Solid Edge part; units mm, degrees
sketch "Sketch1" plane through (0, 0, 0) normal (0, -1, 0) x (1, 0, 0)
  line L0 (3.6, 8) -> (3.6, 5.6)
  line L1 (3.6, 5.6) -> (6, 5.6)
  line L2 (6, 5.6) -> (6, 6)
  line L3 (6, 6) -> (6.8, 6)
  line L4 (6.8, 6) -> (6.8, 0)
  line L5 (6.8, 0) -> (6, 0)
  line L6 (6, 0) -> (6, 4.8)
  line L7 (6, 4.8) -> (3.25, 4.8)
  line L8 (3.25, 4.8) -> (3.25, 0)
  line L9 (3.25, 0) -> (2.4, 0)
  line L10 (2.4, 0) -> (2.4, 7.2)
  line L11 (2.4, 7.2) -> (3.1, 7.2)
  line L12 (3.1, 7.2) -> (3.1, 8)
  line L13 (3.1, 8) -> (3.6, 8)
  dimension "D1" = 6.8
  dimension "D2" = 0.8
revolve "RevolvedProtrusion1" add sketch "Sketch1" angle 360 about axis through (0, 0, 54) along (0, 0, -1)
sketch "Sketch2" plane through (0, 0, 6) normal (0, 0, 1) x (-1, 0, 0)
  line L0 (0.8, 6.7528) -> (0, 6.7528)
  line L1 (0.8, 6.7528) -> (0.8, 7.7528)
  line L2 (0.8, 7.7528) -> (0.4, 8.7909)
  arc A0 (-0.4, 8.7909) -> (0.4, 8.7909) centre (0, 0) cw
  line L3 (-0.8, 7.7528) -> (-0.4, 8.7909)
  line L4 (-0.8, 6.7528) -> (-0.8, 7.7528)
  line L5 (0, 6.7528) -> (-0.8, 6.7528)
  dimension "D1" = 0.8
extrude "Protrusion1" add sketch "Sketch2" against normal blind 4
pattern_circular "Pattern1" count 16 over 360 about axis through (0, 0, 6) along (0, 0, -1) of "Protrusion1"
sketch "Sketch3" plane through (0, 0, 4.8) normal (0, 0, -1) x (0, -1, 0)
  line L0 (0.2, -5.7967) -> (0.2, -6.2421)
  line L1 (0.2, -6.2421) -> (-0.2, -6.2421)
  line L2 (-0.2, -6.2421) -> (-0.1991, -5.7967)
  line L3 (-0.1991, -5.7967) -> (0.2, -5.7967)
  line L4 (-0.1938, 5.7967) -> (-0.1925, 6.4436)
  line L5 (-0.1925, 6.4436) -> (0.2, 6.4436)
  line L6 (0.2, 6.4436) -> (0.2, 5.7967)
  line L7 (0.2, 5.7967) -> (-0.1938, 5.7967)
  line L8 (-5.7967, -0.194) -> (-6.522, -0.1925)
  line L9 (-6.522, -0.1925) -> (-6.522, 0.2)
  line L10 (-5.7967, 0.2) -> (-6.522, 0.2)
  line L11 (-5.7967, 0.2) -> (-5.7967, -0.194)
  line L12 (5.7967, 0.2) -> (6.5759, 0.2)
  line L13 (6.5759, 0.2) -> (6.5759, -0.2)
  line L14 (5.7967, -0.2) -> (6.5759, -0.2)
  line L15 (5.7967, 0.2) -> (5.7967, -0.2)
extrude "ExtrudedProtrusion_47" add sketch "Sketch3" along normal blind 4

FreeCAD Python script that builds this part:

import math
import FreeCAD as App
import Part
import Sketcher

doc = App.newDocument("Part")
params = doc.addObject("Spreadsheet::Sheet", "Params")
for row, (alias, value) in enumerate([
    ("sketch1_height", "6 mm"),
    ("sketch1_width", "0.5 mm"),
    ("sketch1_width2", "0.7 mm"),
    ("sketch1_width3", "0.8 mm"),
    ("sketch1_width4", "2.4 mm"),
    ("revolution_angle", "360 deg"),
    ("sketch2_radius", "8.8 mm"),
    ("sketch2_height", "1 mm"),
    ("pad1_length", "4 mm"),
    ("sketch3_width", "0.4 mm"),
    ("sketch3_height", "0.4 mm"),
    ("pad2_length", "4 mm"),
], start=1):
    params.set(f"A{row}", alias)
    params.set(f"B{row}", "=" + value)
    params.setAlias(f"B{row}", alias)

body = doc.addObject("PartDesign::Body", "Body")

sketch1 = body.newObject("Sketcher::SketchObject", "Sketch")
sketch1.AttachmentSupport = (doc.getObject("XZ_Plane"), [""])
sketch1.MapMode = "FlatFace"
sketch1.addGeometry(Part.LineSegment(App.Vector(3.6, 5.6, 0), App.Vector(3.6, 8, 0)), False)
sketch1.addGeometry(Part.LineSegment(App.Vector(3.6, 8, 0), App.Vector(3.1, 8, 0)), False)
sketch1.addGeometry(Part.LineSegment(App.Vector(3.1, 8, 0), App.Vector(3.1, 7.2, 0)), False)
sketch1.addGeometry(Part.LineSegment(App.Vector(3.1, 7.2, 0), App.Vector(2.4, 7.2, 0)), False)
sketch1.addGeometry(Part.LineSegment(App.Vector(2.4, 7.2, 0), App.Vector(2.4, 0, 0)), False)
sketch1.addGeometry(Part.LineSegment(App.Vector(2.4, 0, 0), App.Vector(3.25, 0, 0)), False)
sketch1.addGeometry(Part.LineSegment(App.Vector(3.25, 0, 0), App.Vector(3.25, 4.8, 0)), False)
sketch1.addGeometry(Part.LineSegment(App.Vector(3.25, 4.8, 0), App.Vector(6, 4.8, 0)), False)
sketch1.addGeometry(Part.LineSegment(App.Vector(6, 4.8, 0), App.Vector(6, 0, 0)), False)
sketch1.addGeometry(Part.LineSegment(App.Vector(6, 0, 0), App.Vector(6.8, 0, 0)), False)
sketch1.addGeometry(Part.LineSegment(App.Vector(6.8, 0, 0), App.Vector(6.8, 6, 0)), False)
sketch1.addGeometry(Part.LineSegment(App.Vector(6.8, 6, 0), App.Vector(6, 6, 0)), False)
sketch1.addGeometry(Part.LineSegment(App.Vector(6, 6, 0), App.Vector(6, 5.6, 0)), False)
sketch1.addGeometry(Part.LineSegment(App.Vector(6, 5.6, 0), App.Vector(3.6, 5.6, 0)), False)
sketch1.addConstraint(Sketcher.Constraint("Coincident", 0, 2, 1, 1))
sketch1.addConstraint(Sketcher.Constraint("Coincident", 1, 2, 2, 1))
sketch1.addConstraint(Sketcher.Constraint("Coincident", 2, 2, 3, 1))
sketch1.addConstraint(Sketcher.Constraint("Coincident", 3, 2, 4, 1))
sketch1.addConstraint(Sketcher.Constraint("Coincident", 4, 2, 5, 1))
sketch1.addConstraint(Sketcher.Constraint("Coincident", 5, 2, 6, 1))
sketch1.addConstraint(Sketcher.Constraint("Coincident", 6, 2, 7, 1))
sketch1.addConstraint(Sketcher.Constraint("Coincident", 7, 2, 8, 1))
sketch1.addConstraint(Sketcher.Constraint("Coincident", 8, 2, 9, 1))
sketch1.addConstraint(Sketcher.Constraint("Coincident", 9, 2, 10, 1))
sketch1.addConstraint(Sketcher.Constraint("Coincident", 10, 2, 11, 1))
sketch1.addConstraint(Sketcher.Constraint("Coincident", 11, 2, 12, 1))
sketch1.addConstraint(Sketcher.Constraint("Coincident", 12, 2, 13, 1))
sketch1.addConstraint(Sketcher.Constraint("Coincident", 13, 2, 0, 1))
sketch1.addConstraint(Sketcher.Constraint("Vertical", 0))
sketch1.addConstraint(Sketcher.Constraint("Horizontal", 1))
sketch1.addConstraint(Sketcher.Constraint("Vertical", 2))
sketch1.addConstraint(Sketcher.Constraint("Horizontal", 3))
sketch1.addConstraint(Sketcher.Constraint("Vertical", 4))
sketch1.addConstraint(Sketcher.Constraint("Horizontal", 5))
sketch1.addConstraint(Sketcher.Constraint("Vertical", 6))
sketch1.addConstraint(Sketcher.Constraint("Horizontal", 7))
sketch1.addConstraint(Sketcher.Constraint("Vertical", 8))
sketch1.addConstraint(Sketcher.Constraint("Horizontal", 9))
sketch1.addConstraint(Sketcher.Constraint("Vertical", 10))
sketch1.addConstraint(Sketcher.Constraint("Horizontal", 11))
sketch1.addConstraint(Sketcher.Constraint("Vertical", 12))
sketch1.addConstraint(Sketcher.Constraint("Horizontal", 13))
sketch1.addConstraint(Sketcher.Constraint("PointOnObject", 4, 2, -1))
sketch1.addConstraint(Sketcher.Constraint("PointOnObject", 8, 2, -1))
sketch1.addConstraint(Sketcher.Constraint("Vertical", 8, 2, 11, 2))
sketch1.addConstraint(Sketcher.Constraint("Equal", 13, 0))
sketch1.addConstraint(Sketcher.Constraint("Equal", 11, 2))
sketch1.addConstraint(Sketcher.Constraint("DistanceY", 10, 1, 10, 2, 6.0))
sketch1.addConstraint(Sketcher.Constraint("DistanceX", 1, 2, 1, 1, 0.5))
sketch1.addConstraint(Sketcher.Constraint("DistanceX", 3, 2, 3, 1, 0.7))
sketch1.addConstraint(Sketcher.Constraint("DistanceX", 9, 1, 9, 2, 0.8))
sketch1.addConstraint(Sketcher.Constraint("DistanceX", 13, 2, 13, 1, 2.4))
sketch1.addConstraint(Sketcher.Constraint("DistanceY", 4, 2, 4, 1, 7.2))
sketch1.addConstraint(Sketcher.Constraint("DistanceY", 6, 1, 6, 2, 4.8))
sketch1.addConstraint(Sketcher.Constraint("DistanceX", -1, 1, 7, 2, 6.0))
sketch1.addConstraint(Sketcher.Constraint("DistanceX", 5, 1, 5, 2, 0.85))
sketch1.setExpression("Constraints[33]", "Params.sketch1_height")
sketch1.setExpression("Constraints[34]", "Params.sketch1_width")
sketch1.setExpression("Constraints[35]", "Params.sketch1_width2")
sketch1.setExpression("Constraints[36]", "Params.sketch1_width3")
sketch1.setExpression("Constraints[37]", "Params.sketch1_width4")
revolution = body.newObject("PartDesign::Revolution", "Revolution")
revolution.Profile = sketch1
revolution.ReferenceAxis = (sketch1, ["V_Axis"])
revolution.setExpression("Angle", "Params.revolution_angle")

sketch2 = body.newObject("Sketcher::SketchObject", "Sketch001")
sketch2.AttachmentSupport = (doc.getObject("XY_Plane"), [""])
sketch2.MapMode = "FlatFace"
sketch2.AttachmentOffset = App.Placement(App.Vector(0, 0, 6), App.Rotation())
sketch2.addGeometry(Part.LineSegment(App.Vector(0.8, -6.7528, 0), App.Vector(-0.8, -6.7528, 0)), False)
sketch2.addGeometry(Part.LineSegment(App.Vector(-0.8, -6.7528, 0), App.Vector(-0.8, -7.7528, 0)), False)
sketch2.addGeometry(Part.LineSegment(App.Vector(-0.8, -7.7528, 0), App.Vector(-0.4, -8.7909, 0)), False)
sketch2.addGeometry(Part.ArcOfCircle(Part.Circle(App.Vector(0, 0, 0), App.Vector(0, 0, 1), 8.799996), math.radians(-92.605253), math.radians(-87.394747)), False)
sketch2.addGeometry(Part.LineSegment(App.Vector(0.4, -8.7909, 0), App.Vector(0.8, -7.7528, 0)), False)
sketch2.addGeometry(Part.LineSegment(App.Vector(0.8, -7.7528, 0), App.Vector(0.8, -6.7528, 0)), False)
sketch2.addConstraint(Sketcher.Constraint("Coincident", 0, 2, 1, 1))
sketch2.addConstraint(Sketcher.Constraint("Coincident", 1, 2, 2, 1))
sketch2.addConstraint(Sketcher.Constraint("Coincident", 2, 2, 3, 1))
sketch2.addConstraint(Sketcher.Constraint("Coincident", 3, 2, 4, 1))
sketch2.addConstraint(Sketcher.Constraint("Coincident", 4, 2, 5, 1))
sketch2.addConstraint(Sketcher.Constraint("Coincident", 5, 2, 0, 1))
sketch2.addConstraint(Sketcher.Constraint("Horizontal", 0))
sketch2.addConstraint(Sketcher.Constraint("Vertical", 1))
sketch2.addConstraint(Sketcher.Constraint("Vertical", 5))
sketch2.addConstraint(Sketcher.Constraint("Coincident", 3, 3, -1, 1))
sketch2.addConstraint(Sketcher.Constraint("Symmetric", 1, 2, 4, 2, -2))
sketch2.addConstraint(Sketcher.Constraint("Horizontal", 2, 2, 3, 2))
sketch2.addConstraint(Sketcher.Constraint("DistanceX", 0, 2, -1, 1, 0.8))
sketch2.addConstraint(Sketcher.Constraint("Radius", 3, 8.8))
sketch2.addConstraint(Sketcher.Constraint("DistanceX", 2, 2, 3, 2, 0.8))
sketch2.addConstraint(Sketcher.Constraint("DistanceY", 1, 2, 1, 1, 1.0))
sketch2.addConstraint(Sketcher.Constraint("DistanceY", 2, 2, 1, 2, 1.038))
sketch2.setExpression("Constraints[13]", "Params.sketch2_radius")
sketch2.setExpression("Constraints[15]", "Params.sketch2_height")
pad1 = body.newObject("PartDesign::Pad", "Pad")
pad1.Profile = sketch2
pad1.setExpression("Length", "Params.pad1_length")
pad1.Reversed = True
doc.recompute()

polarpattern = body.newObject("PartDesign::PolarPattern", "PolarPattern")
polarpattern.Originals = [pad1]
polarpattern.Axis = (doc.getObject("Z_Axis"), [""])
polarpattern.Angle = 360
polarpattern.Occurrences = 16
body.Tip = polarpattern

sketch3 = body.newObject("Sketcher::SketchObject", "Sketch002")
sketch3.AttachmentSupport = (doc.getObject("XY_Plane"), [""])
sketch3.MapMode = "FlatFace"
sketch3.AttachmentOffset = App.Placement(App.Vector(0, 0, 4.8), App.Rotation())
sketch3.addGeometry(Part.LineSegment(App.Vector(6.2421, -0.2, 0), App.Vector(5.7967, -0.2, 0)), False)
sketch3.addGeometry(Part.LineSegment(App.Vector(5.7967, -0.2, 0), App.Vector(5.7967, 0.1991, 0)), False)
sketch3.addGeometry(Part.LineSegment(App.Vector(5.7967, 0.1991, 0), App.Vector(6.2421, 0.2, 0)), False)
sketch3.addGeometry(Part.LineSegment(App.Vector(6.2421, 0.2, 0), App.Vector(6.2421, -0.2, 0)), False)
sketch3.addGeometry(Part.LineSegment(App.Vector(-6.4436, 0.1925, 0), App.Vector(-5.7967, 0.1938, 0)), False)
sketch3.addGeometry(Part.LineSegment(App.Vector(-5.7967, 0.1938, 0), App.Vector(-5.7967, -0.2, 0)), False)
sketch3.addGeometry(Part.LineSegment(App.Vector(-5.7967, -0.2, 0), App.Vector(-6.4436, -0.2, 0)), False)
sketch3.addGeometry(Part.LineSegment(App.Vector(-6.4436, -0.2, 0), App.Vector(-6.4436, 0.1925, 0)), False)
sketch3.addGeometry(Part.LineSegment(App.Vector(0.1925, 6.522, 0), App.Vector(0.194, 5.7967, 0)), False)
sketch3.addGeometry(Part.LineSegment(App.Vector(0.194, 5.7967, 0), App.Vector(-0.2, 5.7967, 0)), False)
sketch3.addGeometry(Part.LineSegment(App.Vector(-0.2, 5.7967, 0), App.Vector(-0.2, 6.522, 0)), False)
sketch3.addGeometry(Part.LineSegment(App.Vector(-0.2, 6.522, 0), App.Vector(0.1925, 6.522, 0)), False)
sketch3.addGeometry(Part.LineSegment(App.Vector(-0.2, -6.5759, 0), App.Vector(-0.2, -5.7967, 0)), False)
sketch3.addGeometry(Part.LineSegment(App.Vector(-0.2, -5.7967, 0), App.Vector(0.2, -5.7967, 0)), False)
sketch3.addGeometry(Part.LineSegment(App.Vector(0.2, -5.7967, 0), App.Vector(0.2, -6.5759, 0)), False)
sketch3.addGeometry(Part.LineSegment(App.Vector(0.2, -6.5759, 0), App.Vector(-0.2, -6.5759, 0)), False)
sketch3.addConstraint(Sketcher.Constraint("Coincident", 0, 2, 1, 1))
sketch3.addConstraint(Sketcher.Constraint("Coincident", 1, 2, 2, 1))
sketch3.addConstraint(Sketcher.Constraint("Coincident", 2, 2, 3, 1))
sketch3.addConstraint(Sketcher.Constraint("Coincident", 3, 2, 0, 1))
sketch3.addConstraint(Sketcher.Constraint("Coincident", 4, 2, 5, 1))
sketch3.addConstraint(Sketcher.Constraint("Coincident", 5, 2, 6, 1))
sketch3.addConstraint(Sketcher.Constraint("Coincident", 6, 2, 7, 1))
sketch3.addConstraint(Sketcher.Constraint("Coincident", 7, 2, 4, 1))
sketch3.addConstraint(Sketcher.Constraint("Coincident", 8, 2, 9, 1))
sketch3.addConstraint(Sketcher.Constraint("Coincident", 9, 2, 10, 1))
sketch3.addConstraint(Sketcher.Constraint("Coincident", 10, 2, 11, 1))
sketch3.addConstraint(Sketcher.Constraint("Coincident", 11, 2, 8, 1))
sketch3.addConstraint(Sketcher.Constraint("Coincident", 12, 2, 13, 1))
sketch3.addConstraint(Sketcher.Constraint("Coincident", 13, 2, 14, 1))
sketch3.addConstraint(Sketcher.Constraint("Coincident", 14, 2, 15, 1))
sketch3.addConstraint(Sketcher.Constraint("Coincident", 15, 2, 12, 1))
sketch3.addConstraint(Sketcher.Constraint("Horizontal", 0))
sketch3.addConstraint(Sketcher.Constraint("Vertical", 1))
sketch3.addConstraint(Sketcher.Constraint("Vertical", 3))
sketch3.addConstraint(Sketcher.Constraint("Vertical", 5))
sketch3.addConstraint(Sketcher.Constraint("Horizontal", 6))
sketch3.addConstraint(Sketcher.Constraint("Vertical", 7))
sketch3.addConstraint(Sketcher.Constraint("Horizontal", 9))
sketch3.addConstraint(Sketcher.Constraint("Vertical", 10))
sketch3.addConstraint(Sketcher.Constraint("Horizontal", 11))
sketch3.addConstraint(Sketcher.Constraint("Vertical", 12))
sketch3.addConstraint(Sketcher.Constraint("Horizontal", 13))
sketch3.addConstraint(Sketcher.Constraint("Vertical", 14))
sketch3.addConstraint(Sketcher.Constraint("Horizontal", 15))
sketch3.addConstraint(Sketcher.Constraint("DistanceX", 13, 1, 13, 2, 0.4))
sketch3.addConstraint(Sketcher.Constraint("DistanceY", 3, 2, 3, 1, 0.4))
sketch3.addConstraint(Sketcher.Constraint("DistanceY", 0, 2, -1, 1, 0.2))
sketch3.addConstraint(Sketcher.Constraint("DistanceY", 5, 2, -1, 1, 0.2))
sketch3.addConstraint(Sketcher.Constraint("DistanceX", 9, 2, -1, 1, 0.2))
sketch3.addConstraint(Sketcher.Constraint("DistanceX", 12, 2, -1, 1, 0.2))
sketch3.addConstraint(Sketcher.Constraint("DistanceX", 6, 2, 6, 1, 0.647))
sketch3.addConstraint(Sketcher.Constraint("DistanceX", 9, 2, 9, 1, 0.394))
sketch3.addConstraint(Sketcher.Constraint("DistanceY", 1, 1, 1, 2, 0.399))
sketch3.addConstraint(Sketcher.Constraint("DistanceX", 0, 2, 0, 1, 0.4454))
sketch3.addConstraint(Sketcher.Constraint("DistanceX", 11, 1, 11, 2, 0.3925))
sketch3.addConstraint(Sketcher.Constraint("DistanceY", 5, 2, 5, 1, 0.3938))
sketch3.addConstraint(Sketcher.Constraint("DistanceY", 7, 1, 7, 2, 0.3925))
sketch3.addConstraint(Sketcher.Constraint("DistanceY", 10, 1, 10, 2, 0.7253))
sketch3.addConstraint(Sketcher.Constraint("DistanceY", 12, 1, 12, 2, 0.7792))
sketch3.addConstraint(Sketcher.Constraint("DistanceX", -1, 1, 2, 2, 6.242))
sketch3.addConstraint(Sketcher.Constraint("DistanceY", -1, 1, 10, 2, 6.522))
sketch3.addConstraint(Sketcher.Constraint("DistanceY", 14, 2, -1, 1, 6.576))
sketch3.addConstraint(Sketcher.Constraint("DistanceX", 4, 2, -1, 1, 5.7967))
sketch3.setExpression("Constraints[29]", "Params.sketch3_width")
sketch3.setExpression("Constraints[30]", "Params.sketch3_height")
pad2 = body.newObject("PartDesign::Pad", "Pad001")
pad2.Profile = sketch3
pad2.setExpression("Length", "Params.pad2_length")
pad2.Reversed = True

doc.recompute()
